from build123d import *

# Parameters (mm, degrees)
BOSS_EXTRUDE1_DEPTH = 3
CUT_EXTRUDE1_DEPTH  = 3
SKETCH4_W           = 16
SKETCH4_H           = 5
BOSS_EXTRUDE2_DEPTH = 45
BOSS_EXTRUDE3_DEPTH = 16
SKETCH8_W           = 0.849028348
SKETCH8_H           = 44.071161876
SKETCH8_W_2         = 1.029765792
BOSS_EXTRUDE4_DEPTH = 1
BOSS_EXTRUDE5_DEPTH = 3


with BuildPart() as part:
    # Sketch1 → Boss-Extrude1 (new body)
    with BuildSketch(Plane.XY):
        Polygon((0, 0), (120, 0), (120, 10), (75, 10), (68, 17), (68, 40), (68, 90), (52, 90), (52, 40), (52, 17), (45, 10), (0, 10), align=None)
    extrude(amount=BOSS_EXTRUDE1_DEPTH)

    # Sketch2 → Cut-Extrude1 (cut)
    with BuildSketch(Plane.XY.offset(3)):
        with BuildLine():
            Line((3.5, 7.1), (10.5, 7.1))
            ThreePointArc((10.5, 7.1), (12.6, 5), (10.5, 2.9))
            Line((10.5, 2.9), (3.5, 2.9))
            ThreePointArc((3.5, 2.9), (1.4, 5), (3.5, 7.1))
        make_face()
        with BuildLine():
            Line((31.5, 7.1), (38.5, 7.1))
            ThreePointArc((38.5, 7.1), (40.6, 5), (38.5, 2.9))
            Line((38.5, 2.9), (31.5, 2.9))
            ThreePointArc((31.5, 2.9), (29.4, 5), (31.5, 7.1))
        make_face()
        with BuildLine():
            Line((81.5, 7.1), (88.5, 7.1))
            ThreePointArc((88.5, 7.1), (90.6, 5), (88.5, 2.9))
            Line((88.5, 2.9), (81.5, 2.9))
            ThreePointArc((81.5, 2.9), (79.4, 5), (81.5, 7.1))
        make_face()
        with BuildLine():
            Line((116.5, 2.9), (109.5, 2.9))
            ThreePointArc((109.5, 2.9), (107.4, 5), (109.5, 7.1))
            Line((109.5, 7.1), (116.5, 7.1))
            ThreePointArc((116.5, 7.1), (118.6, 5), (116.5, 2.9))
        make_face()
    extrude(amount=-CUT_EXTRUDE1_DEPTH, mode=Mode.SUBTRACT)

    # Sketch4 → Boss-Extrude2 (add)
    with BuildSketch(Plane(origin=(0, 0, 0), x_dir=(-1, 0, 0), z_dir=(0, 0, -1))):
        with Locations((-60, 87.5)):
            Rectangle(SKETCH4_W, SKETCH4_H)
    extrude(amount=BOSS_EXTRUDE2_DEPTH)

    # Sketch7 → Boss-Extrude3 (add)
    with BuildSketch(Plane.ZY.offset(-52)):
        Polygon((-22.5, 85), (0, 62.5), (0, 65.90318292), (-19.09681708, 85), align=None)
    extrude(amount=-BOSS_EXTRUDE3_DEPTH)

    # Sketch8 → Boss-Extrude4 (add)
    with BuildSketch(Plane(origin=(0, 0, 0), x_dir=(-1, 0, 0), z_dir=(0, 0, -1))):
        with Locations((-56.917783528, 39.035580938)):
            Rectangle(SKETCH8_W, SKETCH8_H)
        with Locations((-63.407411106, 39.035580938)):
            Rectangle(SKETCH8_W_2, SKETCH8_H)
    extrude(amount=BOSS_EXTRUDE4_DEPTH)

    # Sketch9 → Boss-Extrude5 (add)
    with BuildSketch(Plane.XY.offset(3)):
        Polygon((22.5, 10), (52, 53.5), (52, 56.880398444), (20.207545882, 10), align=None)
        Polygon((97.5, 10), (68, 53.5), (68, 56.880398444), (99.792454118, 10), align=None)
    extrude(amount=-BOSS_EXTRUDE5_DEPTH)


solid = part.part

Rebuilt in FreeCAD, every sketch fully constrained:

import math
import FreeCAD as App
import Part
import Sketcher

doc = App.newDocument("Part")
body = doc.addObject("PartDesign::Body", "Body")

sketch1 = body.newObject("Sketcher::SketchObject", "Sketch")
sketch1.AttachmentSupport = (doc.getObject("XY_Plane"), [""])
sketch1.MapMode = "FlatFace"
sketch1.addGeometry(Part.LineSegment(App.Vector(0, 0, 0), App.Vector(120, 0, 0)), False)
sketch1.addGeometry(Part.LineSegment(App.Vector(120, 0, 0), App.Vector(120, 10, 0)), False)
sketch1.addGeometry(Part.LineSegment(App.Vector(120, 10, 0), App.Vector(75, 10, 0)), False)
sketch1.addGeometry(Part.LineSegment(App.Vector(75, 10, 0), App.Vector(68, 17, 0)), False)
sketch1.addGeometry(Part.LineSegment(App.Vector(68, 17, 0), App.Vector(68, 90, 0)), False)
sketch1.addGeometry(Part.LineSegment(App.Vector(68, 90, 0), App.Vector(52, 90, 0)), False)
sketch1.addGeometry(Part.LineSegment(App.Vector(52, 90, 0), App.Vector(52, 17, 0)), False)
sketch1.addGeometry(Part.LineSegment(App.Vector(52, 17, 0), App.Vector(45, 10, 0)), False)
sketch1.addGeometry(Part.LineSegment(App.Vector(45, 10, 0), App.Vector(0, 10, 0)), False)
sketch1.addGeometry(Part.LineSegment(App.Vector(0, 10, 0), App.Vector(0, 0, 0)), False)
sketch1.addConstraint(Sketcher.Constraint("Coincident", 0, 2, 1, 1))
sketch1.addConstraint(Sketcher.Constraint("Coincident", 1, 2, 2, 1))
sketch1.addConstraint(Sketcher.Constraint("Coincident", 2, 2, 3, 1))
sketch1.addConstraint(Sketcher.Constraint("Coincident", 3, 2, 4, 1))
sketch1.addConstraint(Sketcher.Constraint("Coincident", 4, 2, 5, 1))
sketch1.addConstraint(Sketcher.Constraint("Coincident", 5, 2, 6, 1))
sketch1.addConstraint(Sketcher.Constraint("Coincident", 6, 2, 7, 1))
sketch1.addConstraint(Sketcher.Constraint("Coincident", 7, 2, 8, 1))
sketch1.addConstraint(Sketcher.Constraint("Coincident", 8, 2, 9, 1))
sketch1.addConstraint(Sketcher.Constraint("Coincident", 9, 2, 0, 1))
sketch1.addConstraint(Sketcher.Constraint("Horizontal", 0))
sketch1.addConstraint(Sketcher.Constraint("Vertical", 1))
sketch1.addConstraint(Sketcher.Constraint("Horizontal", 2))
sketch1.addConstraint(Sketcher.Constraint("Vertical", 4))
sketch1.addConstraint(Sketcher.Constraint("Horizontal", 5))
sketch1.addConstraint(Sketcher.Constraint("Vertical", 6))
sketch1.addConstraint(Sketcher.Constraint("Horizontal", 8))
sketch1.addConstraint(Sketcher.Constraint("Vertical", 9))
sketch1.addConstraint(Sketcher.Constraint("Coincident", 9, 2, -1, 1))
sketch1.addConstraint(Sketcher.Constraint("Perpendicular", 3, 7))
sketch1.addConstraint(Sketcher.Constraint("Horizontal", 3, 2, 6, 2))
sketch1.addConstraint(Sketcher.Constraint("Horizontal", 2, 2, 7, 2))
sketch1.addConstraint(Sketcher.Constraint("Equal", 2, 8))
sketch1.addConstraint(Sketcher.Constraint("Equal", 3, 7))
sketch1.addConstraint(Sketcher.Constraint("DistanceX", 0, 1, 0, 2, 120.0))
sketch1.addConstraint(Sketcher.Constraint("DistanceX", 2, 2, 2, 1, 45.0))
sketch1.addConstraint(Sketcher.Constraint("DistanceX", 5, 2, 5, 1, 16.0))
sketch1.addConstraint(Sketcher.Constraint("DistanceY", 1, 1, 1, 2, 10.0))
sketch1.addConstraint(Sketcher.Constraint("DistanceY", 4, 1, 4, 2, 73.0))
pad1 = body.newObject("PartDesign::Pad", "Pad")
pad1.Profile = sketch1
pad1.Length = 3

sketch2 = body.newObject("Sketcher::SketchObject", "Sketch001")
sketch2.AttachmentSupport = (doc.getObject("XY_Plane"), [""])
sketch2.MapMode = "FlatFace"
sketch2.AttachmentOffset = App.Placement(App.Vector(0, 0, 3), App.Rotation())
sketch2.addGeometry(Part.LineSegment(App.Vector(10.5, 7.1, 0), App.Vector(3.5, 7.1, 0)), False)
sketch2.addGeometry(Part.ArcOfCircle(Part.Circle(App.Vector(3.5, 5, 0), App.Vector(0, 0, 1), 2.1), math.radians(90), math.radians(270)), False)
sketch2.addGeometry(Part.LineSegment(App.Vector(3.5, 2.9, 0), App.Vector(10.5, 2.9, 0)), False)
sketch2.addGeometry(Part.ArcOfCircle(Part.Circle(App.Vector(10.5, 5, 0), App.Vector(0, 0, 1), 2.1), math.radians(-90), math.radians(90)), False)
sketch2.addGeometry(Part.LineSegment(App.Vector(38.5, 7.1, 0), App.Vector(31.5, 7.1, 0)), False)
sketch2.addGeometry(Part.ArcOfCircle(Part.Circle(App.Vector(31.5, 5, 0), App.Vector(0, 0, 1), 2.1), math.radians(90), math.radians(270)), False)
sketch2.addGeometry(Part.LineSegment(App.Vector(31.5, 2.9, 0), App.Vector(38.5, 2.9, 0)), False)
sketch2.addGeometry(Part.ArcOfCircle(Part.Circle(App.Vector(38.5, 5, 0), App.Vector(0, 0, 1), 2.1), math.radians(-90), math.radians(90)), False)
sketch2.addGeometry(Part.LineSegment(App.Vector(88.5, 7.1, 0), App.Vector(81.5, 7.1, 0)), False)
sketch2.addGeometry(Part.ArcOfCircle(Part.Circle(App.Vector(81.5, 5, 0), App.Vector(0, 0, 1), 2.1), math.radians(90), math.radians(270)), False)
sketch2.addGeometry(Part.LineSegment(App.Vector(81.5, 2.9, 0), App.Vector(88.5, 2.9, 0)), False)
sketch2.addGeometry(Part.ArcOfCircle(Part.Circle(App.Vector(88.5, 5, 0), App.Vector(0, 0, 1), 2.1), math.radians(-90), math.radians(90)), False)
sketch2.addGeometry(Part.LineSegment(App.Vector(109.5, 2.9, 0), App.Vector(116.5, 2.9, 0)), False)
sketch2.addGeometry(Part.ArcOfCircle(Part.Circle(App.Vector(116.5, 5, 0), App.Vector(0, 0, 1), 2.1), math.radians(-90), math.radians(90)), False)
sketch2.addGeometry(Part.LineSegment(App.Vector(116.5, 7.1, 0), App.Vector(109.5, 7.1, 0)), False)
sketch2.addGeometry(Part.ArcOfCircle(Part.Circle(App.Vector(109.5, 5, 0), App.Vector(0, 0, 1), 2.1), math.radians(90), math.radians(270)), False)
sketch2.addConstraint(Sketcher.Constraint("Tangent", 0, 2, 1, 1))
sketch2.addConstraint(Sketcher.Constraint("Tangent", 1, 2, 2, 1))
sketch2.addConstraint(Sketcher.Constraint("Tangent", 2, 2, 3, 1))
sketch2.addConstraint(Sketcher.Constraint("Tangent", 3, 2, 0, 1))
sketch2.addConstraint(Sketcher.Constraint("Tangent", 4, 2, 5, 1))
sketch2.addConstraint(Sketcher.Constraint("Tangent", 5, 2, 6, 1))
sketch2.addConstraint(Sketcher.Constraint("Tangent", 6, 2, 7, 1))
sketch2.addConstraint(Sketcher.Constraint("Tangent", 7, 2, 4, 1))
sketch2.addConstraint(Sketcher.Constraint("Tangent", 8, 2, 9, 1))
sketch2.addConstraint(Sketcher.Constraint("Tangent", 9, 2, 10, 1))
sketch2.addConstraint(Sketcher.Constraint("Tangent", 10, 2, 11, 1))
sketch2.addConstraint(Sketcher.Constraint("Tangent", 11, 2, 8, 1))
sketch2.addConstraint(Sketcher.Constraint("Tangent", 12, 2, 13, 1))
sketch2.addConstraint(Sketcher.Constraint("Tangent", 13, 2, 14, 1))
sketch2.addConstraint(Sketcher.Constraint("Tangent", 14, 2, 15, 1))
sketch2.addConstraint(Sketcher.Constraint("Tangent", 15, 2, 12, 1))
sketch2.addConstraint(Sketcher.Constraint("Horizontal", 0))
sketch2.addConstraint(Sketcher.Constraint("Horizontal", 2))
sketch2.addConstraint(Sketcher.Constraint("Horizontal", 4))
sketch2.addConstraint(Sketcher.Constraint("Horizontal", 6))
sketch2.addConstraint(Sketcher.Constraint("Horizontal", 8))
sketch2.addConstraint(Sketcher.Constraint("Horizontal", 10))
sketch2.addConstraint(Sketcher.Constraint("Horizontal", 12))
sketch2.addConstraint(Sketcher.Constraint("Horizontal", 14))
sketch2.addConstraint(Sketcher.Constraint("Equal", 3, 5))
sketch2.addConstraint(Sketcher.Constraint("Equal", 7, 9))
sketch2.addConstraint(Sketcher.Constraint("Equal", 11, 13))
sketch2.addConstraint(Sketcher.Constraint("Horizontal", 3, 3, 5, 3))
sketch2.addConstraint(Sketcher.Constraint("Horizontal", 7, 3, 9, 3))
sketch2.addConstraint(Sketcher.Constraint("Horizontal", 11, 3, 13, 3))
sketch2.addConstraint(Sketcher.Constraint("Equal", 2, 4))
sketch2.addConstraint(Sketcher.Constraint("Equal", 6, 8))
sketch2.addConstraint(Sketcher.Constraint("Equal", 10, 12))
sketch2.addConstraint(Sketcher.Constraint("Radius", 1, 2.1))
sketch2.addConstraint(Sketcher.Constraint("DistanceX", 0, 2, 0, 1, 7.0))
sketch2.addConstraint(Sketcher.Constraint("DistanceY", -1, 1, 1, 3, 5.0))
sketch2.addConstraint(Sketcher.Constraint("DistanceX", 3, 3, 5, 3, 21.0))
sketch2.addConstraint(Sketcher.Constraint("DistanceX", 7, 3, 9, 3, 43.0))
sketch2.addConstraint(Sketcher.Constraint("DistanceX", 11, 3, 13, 3, 28.0))
sketch2.addConstraint(Sketcher.Constraint("DistanceX", -1, 1, 1, 3, 3.5))
pocket1 = body.newObject("PartDesign::Pocket", "Pocket")
pocket1.Profile = sketch2
pocket1.Length = 3

sketch3 = body.newObject("Sketcher::SketchObject", "Sketch002")
sketch3.AttachmentSupport = (doc.getObject("XY_Plane"), [""])
sketch3.MapMode = "FlatFace"
sketch3.addGeometry(Part.LineSegment(App.Vector(68, 90, 0), App.Vector(68, 85, 0)), False)
sketch3.addGeometry(Part.LineSegment(App.Vector(68, 85, 0), App.Vector(52, 85, 0)), False)
sketch3.addGeometry(Part.LineSegment(App.Vector(52, 85, 0), App.Vector(52, 90, 0)), False)
sketch3.addGeometry(Part.LineSegment(App.Vector(52, 90, 0), App.Vector(68, 90, 0)), False)
sketch3.addConstraint(Sketcher.Constraint("Coincident", 0, 2, 1, 1))
sketch3.addConstraint(Sketcher.Constraint("Coincident", 1, 2, 2, 1))
sketch3.addConstraint(Sketcher.Constraint("Coincident", 2, 2, 3, 1))
sketch3.addConstraint(Sketcher.Constraint("Coincident", 3, 2, 0, 1))
sketch3.addConstraint(Sketcher.Constraint("Vertical", 0))
sketch3.addConstraint(Sketcher.Constraint("Horizontal", 1))
sketch3.addConstraint(Sketcher.Constraint("Vertical", 2))
sketch3.addConstraint(Sketcher.Constraint("Horizontal", 3))
sketch3.addConstraint(Sketcher.Constraint("DistanceX", 1, 2, 1, 1, 16.0))
sketch3.addConstraint(Sketcher.Constraint("DistanceY", 0, 2, 0, 1, 5.0))
sketch3.addConstraint(Sketcher.Constraint("DistanceX", -1, 1, 0, 2, 68.0))
sketch3.addConstraint(Sketcher.Constraint("DistanceY", -1, 1, 0, 2, 85.0))
pad2 = body.newObject("PartDesign::Pad", "Pad001")
pad2.Profile = sketch3
pad2.Length = 45
pad2.Reversed = True

sketch4 = body.newObject("Sketcher::SketchObject", "Sketch003")
sketch4.AttachmentSupport = (doc.getObject("YZ_Plane"), [""])
sketch4.MapMode = "FlatFace"
sketch4.AttachmentOffset = App.Placement(App.Vector(0, 0, 52), App.Rotation())
sketch4.addGeometry(Part.LineSegment(App.Vector(85, -22.5, 0), App.Vector(62.5, 0, 0)), False)
sketch4.addGeometry(Part.LineSegment(App.Vector(62.5, 0, 0), App.Vector(65.903183, 0, 0)), False)
sketch4.addGeometry(Part.LineSegment(App.Vector(65.903183, 0, 0), App.Vector(85, -19.096817, 0)), False)
sketch4.addGeometry(Part.LineSegment(App.Vector(85, -19.096817, 0), App.Vector(85, -22.5, 0)), False)
sketch4.addConstraint(Sketcher.Constraint("Coincident", 0, 2, 1, 1))
sketch4.addConstraint(Sketcher.Constraint("Coincident", 1, 2, 2, 1))
sketch4.addConstraint(Sketcher.Constraint("Coincident", 2, 2, 3, 1))
sketch4.addConstraint(Sketcher.Constraint("Coincident", 3, 2, 0, 1))
sketch4.addConstraint(Sketcher.Constraint("Horizontal", 1))
sketch4.addConstraint(Sketcher.Constraint("Vertical", 3))
sketch4.addConstraint(Sketcher.Constraint("PointOnObject", 0, 2, -1))
sketch4.addConstraint(Sketcher.Constraint("Parallel", 0, 2))
sketch4.addConstraint(Sketcher.Constraint("Equal", 1, 3))
sketch4.addConstraint(Sketcher.Constraint("DistanceX", -1, 1, 2, 2, 85.0))
sketch4.addConstraint(Sketcher.Constraint("DistanceX", -1, 1, 0, 2, 62.5))
sketch4.addConstraint(Sketcher.Constraint("DistanceX", 1, 1, 1, 2, 3.403183))
pad3 = body.newObject("PartDesign::Pad", "Pad002")
pad3.Profile = sketch4
pad3.Length = 16

sketch5 = body.newObject("Sketcher::SketchObject", "Sketch004")
sketch5.AttachmentSupport = (doc.getObject("XY_Plane"), [""])
sketch5.MapMode = "FlatFace"
sketch5.addGeometry(Part.LineSegment(App.Vector(57.342298, 61.071162, 0), App.Vector(57.342298, 17, 0)), False)
sketch5.addGeometry(Part.LineSegment(App.Vector(57.342298, 17, 0), App.Vector(56.493269, 17, 0)), False)
sketch5.addGeometry(Part.LineSegment(App.Vector(56.493269, 17, 0), App.Vector(56.493269, 61.071162, 0)), False)
sketch5.addGeometry(Part.LineSegment(App.Vector(56.493269, 61.071162, 0), App.Vector(57.342298, 61.071162, 0)), False)
sketch5.addGeometry(Part.LineSegment(App.Vector(63.922294, 61.071162, 0), App.Vector(63.922294, 17, 0)), False)
sketch5.addGeometry(Part.LineSegment(App.Vector(63.922294, 17, 0), App.Vector(62.892528, 17, 0)), False)
sketch5.addGeometry(Part.LineSegment(App.Vector(62.892528, 17, 0), App.Vector(62.892528, 61.071162, 0)), False)
sketch5.addGeometry(Part.LineSegment(App.Vector(62.892528, 61.071162, 0), App.Vector(63.922294, 61.071162, 0)), False)
sketch5.addConstraint(Sketcher.Constraint("Coincident", 0, 2, 1, 1))
sketch5.addConstraint(Sketcher.Constraint("Coincident", 1, 2, 2, 1))
sketch5.addConstraint(Sketcher.Constraint("Coincident", 2, 2, 3, 1))
sketch5.addConstraint(Sketcher.Constraint("Coincident", 3, 2, 0, 1))
sketch5.addConstraint(Sketcher.Constraint("Coincident", 4, 2, 5, 1))
sketch5.addConstraint(Sketcher.Constraint("Coincident", 5, 2, 6, 1))
sketch5.addConstraint(Sketcher.Constraint("Coincident", 6, 2, 7, 1))
sketch5.addConstraint(Sketcher.Constraint("Coincident", 7, 2, 4, 1))
sketch5.addConstraint(Sketcher.Constraint("Vertical", 0))
sketch5.addConstraint(Sketcher.Constraint("Horizontal", 1))
sketch5.addConstraint(Sketcher.Constraint("Vertical", 2))
sketch5.addConstraint(Sketcher.Constraint("Horizontal", 3))
sketch5.addConstraint(Sketcher.Constraint("Vertical", 4))
sketch5.addConstraint(Sketcher.Constraint("Horizontal", 5))
sketch5.addConstraint(Sketcher.Constraint("Vertical", 6))
sketch5.addConstraint(Sketcher.Constraint("Horizontal", 7))
sketch5.addConstraint(Sketcher.Constraint("Horizontal", 1, 2, 4, 2))
sketch5.addConstraint(Sketcher.Constraint("Horizontal", 3, 2, 6, 2))
sketch5.addConstraint(Sketcher.Constraint("DistanceY", -1, 1, 0, 2, 17.0))
sketch5.addConstraint(Sketcher.Constraint("DistanceX", 1, 2, 1, 1, 0.849028))
sketch5.addConstraint(Sketcher.Constraint("DistanceY", 0, 2, 0, 1, 44.071162))
sketch5.addConstraint(Sketcher.Constraint("DistanceX", 5, 2, 5, 1, 1.029766))
sketch5.addConstraint(Sketcher.Constraint("DistanceX", -1, 1, 1, 2, 56.493269))
sketch5.addConstraint(Sketcher.Constraint("DistanceX", -1, 1, 5, 2, 62.892528))
pad4 = body.newObject("PartDesign::Pad", "Pad003")
pad4.Profile = sketch5
pad4.Length = 1
pad4.Reversed = True

sketch6 = body.newObject("Sketcher::SketchObject", "Sketch005")
sketch6.AttachmentSupport = (doc.getObject("XY_Plane"), [""])
sketch6.MapMode = "FlatFace"
sketch6.AttachmentOffset = App.Placement(App.Vector(0, 0, 3), App.Rotation())
sketch6.addGeometry(Part.LineSegment(App.Vector(22.5, 10, 0), App.Vector(52, 53.5, 0)), False)
sketch6.addGeometry(Part.LineSegment(App.Vector(52, 53.5, 0), App.Vector(52, 56.880398, 0)), False)
sketch6.addGeometry(Part.LineSegment(App.Vector(52, 56.880398, 0), App.Vector(20.207546, 10, 0)), False)
sketch6.addGeometry(Part.LineSegment(App.Vector(20.207546, 10, 0), App.Vector(22.5, 10, 0)), False)
sketch6.addGeometry(Part.LineSegment(App.Vector(68, 53.5, 0), App.Vector(97.5, 10, 0)), False)
sketch6.addGeometry(Part.LineSegment(App.Vector(97.5, 10, 0), App.Vector(99.792454, 10, 0)), False)
sketch6.addGeometry(Part.LineSegment(App.Vector(99.792454, 10, 0), App.Vector(68, 56.880398, 0)), False)
sketch6.addGeometry(Part.LineSegment(App.Vector(68, 56.880398, 0), App.Vector(68, 53.5, 0)), False)
sketch6.addConstraint(Sketcher.Constraint("Coincident", 0, 2, 1, 1))
sketch6.addConstraint(Sketcher.Constraint("Coincident", 1, 2, 2, 1))
sketch6.addConstraint(Sketcher.Constraint("Coincident", 2, 2, 3, 1))
sketch6.addConstraint(Sketcher.Constraint("Coincident", 3, 2, 0, 1))
sketch6.addConstraint(Sketcher.Constraint("Coincident", 4, 2, 5, 1))
sketch6.addConstraint(Sketcher.Constraint("Coincident", 5, 2, 6, 1))
sketch6.addConstraint(Sketcher.Constraint("Coincident", 6, 2, 7, 1))
sketch6.addConstraint(Sketcher.Constraint("Coincident", 7, 2, 4, 1))
sketch6.addConstraint(Sketcher.Constraint("Vertical", 1))
sketch6.addConstraint(Sketcher.Constraint("Horizontal", 3))
sketch6.addConstraint(Sketcher.Constraint("Horizontal", 5))
sketch6.addConstraint(Sketcher.Constraint("Vertical", 7))
sketch6.addConstraint(Sketcher.Constraint("Parallel", 0, 2))
sketch6.addConstraint(Sketcher.Constraint("Parallel", 4, 6))
sketch6.addConstraint(Sketcher.Constraint("Horizontal", 3, 2, 4, 2))
sketch6.addConstraint(Sketcher.Constraint("Horizontal", 1, 2, 6, 2))
sketch6.addConstraint(Sketcher.Constraint("Horizontal", 0, 2, 7, 2))
sketch6.addConstraint(Sketcher.Constraint("Equal", 3, 5))
sketch6.addConstraint(Sketcher.Constraint("DistanceX", -1, 1, 0, 2, 52.0))
sketch6.addConstraint(Sketcher.Constraint("DistanceY", -1, 1, 2, 2, 10.0))
sketch6.addConstraint(Sketcher.Constraint("DistanceX", -1, 1, 6, 2, 68.0))
sketch6.addConstraint(Sketcher.Constraint("DistanceX", 3, 2, 4, 2, 75.0))
sketch6.addConstraint(Sketcher.Constraint("DistanceY", -1, 1, 0, 2, 53.5))
sketch6.addConstraint(Sketcher.Constraint("DistanceY", 1, 1, 1, 2, 3.380398))
pad5 = body.newObject("PartDesign::Pad", "Pad004")
pad5.Profile = sketch6
pad5.Length = 3
pad5.Reversed = True

doc.recompute()
